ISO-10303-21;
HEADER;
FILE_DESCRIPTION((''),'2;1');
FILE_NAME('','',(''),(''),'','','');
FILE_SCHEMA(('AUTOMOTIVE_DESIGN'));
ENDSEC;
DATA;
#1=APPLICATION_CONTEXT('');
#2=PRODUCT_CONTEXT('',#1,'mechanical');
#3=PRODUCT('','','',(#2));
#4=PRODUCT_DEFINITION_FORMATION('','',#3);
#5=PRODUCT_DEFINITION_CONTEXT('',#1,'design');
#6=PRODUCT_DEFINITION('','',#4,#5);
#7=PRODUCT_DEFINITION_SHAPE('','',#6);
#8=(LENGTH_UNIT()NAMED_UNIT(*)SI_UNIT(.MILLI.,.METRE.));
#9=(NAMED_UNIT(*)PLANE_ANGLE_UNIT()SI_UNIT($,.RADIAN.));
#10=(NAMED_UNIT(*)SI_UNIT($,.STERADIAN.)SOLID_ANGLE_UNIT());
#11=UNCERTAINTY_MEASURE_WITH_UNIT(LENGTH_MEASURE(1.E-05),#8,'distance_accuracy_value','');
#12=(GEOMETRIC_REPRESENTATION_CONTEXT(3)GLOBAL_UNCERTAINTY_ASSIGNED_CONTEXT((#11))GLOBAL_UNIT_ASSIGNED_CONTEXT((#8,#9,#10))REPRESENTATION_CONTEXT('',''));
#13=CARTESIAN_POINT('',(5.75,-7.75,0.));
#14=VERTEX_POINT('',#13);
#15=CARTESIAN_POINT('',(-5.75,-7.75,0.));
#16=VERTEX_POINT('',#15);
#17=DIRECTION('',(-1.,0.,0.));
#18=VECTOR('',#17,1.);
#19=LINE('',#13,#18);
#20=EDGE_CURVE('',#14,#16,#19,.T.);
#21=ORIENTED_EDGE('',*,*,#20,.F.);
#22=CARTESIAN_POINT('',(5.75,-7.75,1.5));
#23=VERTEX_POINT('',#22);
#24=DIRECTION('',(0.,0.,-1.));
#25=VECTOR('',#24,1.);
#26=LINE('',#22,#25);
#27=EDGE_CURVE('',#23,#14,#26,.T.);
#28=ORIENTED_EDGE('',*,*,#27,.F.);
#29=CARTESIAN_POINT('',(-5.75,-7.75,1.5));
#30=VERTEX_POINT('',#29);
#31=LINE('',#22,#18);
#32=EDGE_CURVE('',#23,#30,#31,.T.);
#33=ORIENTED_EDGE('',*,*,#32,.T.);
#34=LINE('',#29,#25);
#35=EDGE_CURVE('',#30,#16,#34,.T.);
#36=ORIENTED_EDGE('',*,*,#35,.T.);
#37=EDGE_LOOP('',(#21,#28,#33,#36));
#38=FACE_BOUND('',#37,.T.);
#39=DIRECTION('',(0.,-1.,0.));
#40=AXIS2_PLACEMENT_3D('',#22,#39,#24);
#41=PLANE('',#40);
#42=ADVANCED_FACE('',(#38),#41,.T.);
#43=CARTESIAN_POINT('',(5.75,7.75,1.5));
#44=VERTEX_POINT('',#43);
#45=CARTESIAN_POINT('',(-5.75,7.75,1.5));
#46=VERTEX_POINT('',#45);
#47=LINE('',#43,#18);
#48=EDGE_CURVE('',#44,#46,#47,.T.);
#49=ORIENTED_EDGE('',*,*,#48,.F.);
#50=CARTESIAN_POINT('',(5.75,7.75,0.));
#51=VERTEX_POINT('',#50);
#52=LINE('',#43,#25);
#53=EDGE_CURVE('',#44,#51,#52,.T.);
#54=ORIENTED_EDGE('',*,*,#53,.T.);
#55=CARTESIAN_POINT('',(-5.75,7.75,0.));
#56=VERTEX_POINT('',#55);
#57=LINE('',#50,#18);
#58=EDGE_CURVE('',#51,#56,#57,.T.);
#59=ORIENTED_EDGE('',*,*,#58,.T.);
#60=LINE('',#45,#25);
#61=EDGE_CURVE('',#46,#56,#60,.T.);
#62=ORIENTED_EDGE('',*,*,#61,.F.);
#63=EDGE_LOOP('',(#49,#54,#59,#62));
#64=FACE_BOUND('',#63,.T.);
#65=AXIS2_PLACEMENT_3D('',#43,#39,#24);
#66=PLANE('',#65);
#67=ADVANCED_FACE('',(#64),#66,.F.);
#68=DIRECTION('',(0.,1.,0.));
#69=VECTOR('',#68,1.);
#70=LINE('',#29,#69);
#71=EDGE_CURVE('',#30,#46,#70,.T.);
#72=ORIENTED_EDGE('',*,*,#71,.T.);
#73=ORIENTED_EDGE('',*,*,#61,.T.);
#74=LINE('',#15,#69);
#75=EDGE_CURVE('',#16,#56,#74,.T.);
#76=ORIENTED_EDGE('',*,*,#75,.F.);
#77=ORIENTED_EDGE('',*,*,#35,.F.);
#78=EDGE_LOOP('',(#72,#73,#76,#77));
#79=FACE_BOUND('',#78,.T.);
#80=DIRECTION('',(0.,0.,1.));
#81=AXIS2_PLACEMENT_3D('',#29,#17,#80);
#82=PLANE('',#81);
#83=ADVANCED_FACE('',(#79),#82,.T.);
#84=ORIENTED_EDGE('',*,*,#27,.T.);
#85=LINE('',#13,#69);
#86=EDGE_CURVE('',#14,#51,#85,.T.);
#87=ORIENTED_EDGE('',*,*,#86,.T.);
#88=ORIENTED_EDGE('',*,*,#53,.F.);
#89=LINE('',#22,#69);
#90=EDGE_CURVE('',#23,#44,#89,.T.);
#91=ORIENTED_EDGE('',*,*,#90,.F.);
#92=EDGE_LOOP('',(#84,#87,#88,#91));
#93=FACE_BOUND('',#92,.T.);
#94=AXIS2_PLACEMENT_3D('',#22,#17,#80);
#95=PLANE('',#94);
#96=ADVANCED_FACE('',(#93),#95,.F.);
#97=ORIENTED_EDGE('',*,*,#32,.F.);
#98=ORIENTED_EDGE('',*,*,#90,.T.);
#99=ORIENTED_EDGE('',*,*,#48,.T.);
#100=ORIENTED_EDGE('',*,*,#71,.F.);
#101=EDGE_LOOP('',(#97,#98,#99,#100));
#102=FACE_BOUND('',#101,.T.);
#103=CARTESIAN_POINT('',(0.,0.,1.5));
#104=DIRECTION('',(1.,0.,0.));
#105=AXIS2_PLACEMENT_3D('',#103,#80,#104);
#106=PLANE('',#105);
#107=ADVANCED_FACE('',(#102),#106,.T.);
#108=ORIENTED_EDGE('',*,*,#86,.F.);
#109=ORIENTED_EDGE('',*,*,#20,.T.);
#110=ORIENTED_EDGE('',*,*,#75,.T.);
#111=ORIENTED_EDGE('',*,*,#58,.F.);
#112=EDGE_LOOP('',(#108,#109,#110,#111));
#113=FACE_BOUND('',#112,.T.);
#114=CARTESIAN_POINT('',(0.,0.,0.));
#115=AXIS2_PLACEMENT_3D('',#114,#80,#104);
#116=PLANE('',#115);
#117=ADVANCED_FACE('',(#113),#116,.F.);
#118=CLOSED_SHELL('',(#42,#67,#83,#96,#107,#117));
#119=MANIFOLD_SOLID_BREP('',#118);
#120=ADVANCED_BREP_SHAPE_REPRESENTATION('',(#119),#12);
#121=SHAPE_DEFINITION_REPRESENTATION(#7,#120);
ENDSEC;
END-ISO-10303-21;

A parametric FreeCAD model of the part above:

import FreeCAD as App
import Part
import Sketcher

doc = App.newDocument("Part")
body = doc.addObject("PartDesign::Body", "Body")

sketch1 = doc.addObject("Sketcher::SketchObject", "Sketch")
body.addObject(sketch1)
sketch1.AttachmentSupport = (doc.XY_Plane, [""])
sketch1.MapMode = "FlatFace"
sketch1.addGeometry(Part.LineSegment(App.Vector(-6, 8, 0), App.Vector(-6, -8, 0)), False)
sketch1.addGeometry(Part.LineSegment(App.Vector(-6, -8, 0), App.Vector(6, -8, 0)), False)
sketch1.addGeometry(Part.LineSegment(App.Vector(6, -8, 0), App.Vector(6, 8, 0)), False)
sketch1.addGeometry(Part.LineSegment(App.Vector(6, 8, 0), App.Vector(-6, 8, 0)), False)
sketch1.addConstraint(Sketcher.Constraint("Coincident", 0, 2, 1, 1))
sketch1.addConstraint(Sketcher.Constraint("Coincident", 1, 2, 2, 1))
sketch1.addConstraint(Sketcher.Constraint("Coincident", 2, 2, 3, 1))
sketch1.addConstraint(Sketcher.Constraint("Coincident", 3, 2, 0, 1))
sketch1.addConstraint(Sketcher.Constraint("Vertical", 0))
sketch1.addConstraint(Sketcher.Constraint("Horizontal", 1))
sketch1.addConstraint(Sketcher.Constraint("Vertical", 2))
sketch1.addConstraint(Sketcher.Constraint("Horizontal", 3))
sketch1.addConstraint(Sketcher.Constraint("Symmetric", 0, 2, 2, 2, -1, 1))
sketch1.addConstraint(Sketcher.Constraint("DistanceX", 1, 1, 1, 2, 11.5))
sketch1.addConstraint(Sketcher.Constraint("DistanceY", 0, 2, 0, 1, 15.5))
pad1 = doc.addObject("PartDesign::Pad", "Pad")
body.addObject(pad1)
pad1.Profile = sketch1
pad1.Length = 1.5

doc.recompute()
